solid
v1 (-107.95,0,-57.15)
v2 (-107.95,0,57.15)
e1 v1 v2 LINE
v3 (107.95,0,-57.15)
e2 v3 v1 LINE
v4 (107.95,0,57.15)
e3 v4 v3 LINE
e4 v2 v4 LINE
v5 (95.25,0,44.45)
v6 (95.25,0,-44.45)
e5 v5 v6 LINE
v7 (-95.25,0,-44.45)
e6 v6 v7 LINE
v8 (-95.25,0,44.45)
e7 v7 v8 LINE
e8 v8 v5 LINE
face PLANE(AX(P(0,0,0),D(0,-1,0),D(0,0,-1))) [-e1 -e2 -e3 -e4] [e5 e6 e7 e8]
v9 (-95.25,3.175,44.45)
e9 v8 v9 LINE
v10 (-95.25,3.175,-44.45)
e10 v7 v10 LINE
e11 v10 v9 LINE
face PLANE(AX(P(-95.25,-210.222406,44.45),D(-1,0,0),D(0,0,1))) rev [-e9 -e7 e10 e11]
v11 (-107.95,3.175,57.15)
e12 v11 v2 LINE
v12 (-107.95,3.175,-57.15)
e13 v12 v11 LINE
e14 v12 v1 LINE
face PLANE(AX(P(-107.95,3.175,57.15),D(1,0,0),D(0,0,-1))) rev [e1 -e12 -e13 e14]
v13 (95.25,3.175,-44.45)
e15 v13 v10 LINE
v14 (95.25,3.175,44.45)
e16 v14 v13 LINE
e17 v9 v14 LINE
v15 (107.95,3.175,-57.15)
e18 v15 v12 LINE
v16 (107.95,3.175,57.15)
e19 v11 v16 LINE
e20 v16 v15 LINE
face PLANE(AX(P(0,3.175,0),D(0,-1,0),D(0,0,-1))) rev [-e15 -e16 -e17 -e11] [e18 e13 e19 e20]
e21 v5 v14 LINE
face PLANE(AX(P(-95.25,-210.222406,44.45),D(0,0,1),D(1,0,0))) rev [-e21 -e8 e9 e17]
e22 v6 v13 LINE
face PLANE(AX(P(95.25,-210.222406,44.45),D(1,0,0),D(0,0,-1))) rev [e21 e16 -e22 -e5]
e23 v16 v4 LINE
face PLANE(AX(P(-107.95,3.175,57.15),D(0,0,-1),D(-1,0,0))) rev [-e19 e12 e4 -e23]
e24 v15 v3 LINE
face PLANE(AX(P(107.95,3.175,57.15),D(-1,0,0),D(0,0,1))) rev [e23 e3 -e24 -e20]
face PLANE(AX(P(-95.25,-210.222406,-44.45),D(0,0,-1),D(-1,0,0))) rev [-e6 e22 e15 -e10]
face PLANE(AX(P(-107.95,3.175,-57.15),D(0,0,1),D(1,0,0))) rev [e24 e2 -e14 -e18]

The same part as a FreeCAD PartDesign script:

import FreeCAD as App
import Part
import Sketcher
from FreeCAD import Vector
Q = App.Units.Quantity


def add_polygon(sketch, points):
    """Adds a closed chain of lines whose ends are joined by coincident constraints."""
    first, n = sketch.GeometryCount, len(points)
    for a, b in zip(points, points[1:] + points[:1]):
        sketch.addGeometry(Part.LineSegment(App.Vector(*a, 0), App.Vector(*b, 0)), False)
    for i in range(n):
        sketch.addConstraint(Sketcher.Constraint("Coincident", first + i, 2, first + (i + 1) % n, 1))

doc = App.newDocument("Part")
body = doc.addObject("PartDesign::Body", "Body")

# Sketch on XZ plane
sketch1 = body.newObject("Sketcher::SketchObject", "Sketch")
sketch1.AttachmentSupport = (doc.getObject("XZ_Plane"), [""])
sketch1.MapMode = "FlatFace"
add_polygon(sketch1, [(-108, -57), (-108, 57), (108, 57), (108, -57)])  # lines 0-3
sketch1.addConstraint([
    Sketcher.Constraint("Vertical", 0),
    Sketcher.Constraint("Horizontal", 1),
    Sketcher.Constraint("Vertical", 2),
    Sketcher.Constraint("Horizontal", 3),
    Sketcher.Constraint("Symmetric", 0, 2, 2, 2, -1, 1),
    Sketcher.Constraint("DistanceX", 1, 1, 1, 2, Q("8.5 in")),
    Sketcher.Constraint("DistanceY", 0, 1, 0, 2, Q("4.5 in")),
])
pad1 = body.newObject("PartDesign::Pad", "Pad")
pad1.Profile = sketch1
pad1.Length = Q("0.125 in")
pad1.Reversed = True

# Sketch on XZ plane
sketch2 = body.newObject("Sketcher::SketchObject", "Sketch001")
sketch2.AttachmentSupport = (doc.getObject("XZ_Plane"), [""])
sketch2.MapMode = "FlatFace"
sketch2.AttachmentOffset = App.Placement(Vector(0, 0, -0.125 * 25.4), App.Rotation())
add_polygon(sketch2, [(-95, -44), (-95, 44), (95, 44), (95, -44)])  # lines 0-3
sketch2.addConstraint([
    Sketcher.Constraint("Vertical", 0),
    Sketcher.Constraint("Horizontal", 1),
    Sketcher.Constraint("Vertical", 2),
    Sketcher.Constraint("Horizontal", 3),
    Sketcher.Constraint("Symmetric", 0, 2, 2, 2, -1, 1),
    Sketcher.Constraint("DistanceX", 1, 1, 1, 2, Q("7.5 in")),
    Sketcher.Constraint("DistanceY", 0, 1, 0, 2, Q("3.5 in")),
])
pocket1 = body.newObject("PartDesign::Pocket", "Pocket")
pocket1.Profile = sketch2
pocket1.Length = Q("0.125 in")
pocket1.Reversed = True

doc.recompute()
